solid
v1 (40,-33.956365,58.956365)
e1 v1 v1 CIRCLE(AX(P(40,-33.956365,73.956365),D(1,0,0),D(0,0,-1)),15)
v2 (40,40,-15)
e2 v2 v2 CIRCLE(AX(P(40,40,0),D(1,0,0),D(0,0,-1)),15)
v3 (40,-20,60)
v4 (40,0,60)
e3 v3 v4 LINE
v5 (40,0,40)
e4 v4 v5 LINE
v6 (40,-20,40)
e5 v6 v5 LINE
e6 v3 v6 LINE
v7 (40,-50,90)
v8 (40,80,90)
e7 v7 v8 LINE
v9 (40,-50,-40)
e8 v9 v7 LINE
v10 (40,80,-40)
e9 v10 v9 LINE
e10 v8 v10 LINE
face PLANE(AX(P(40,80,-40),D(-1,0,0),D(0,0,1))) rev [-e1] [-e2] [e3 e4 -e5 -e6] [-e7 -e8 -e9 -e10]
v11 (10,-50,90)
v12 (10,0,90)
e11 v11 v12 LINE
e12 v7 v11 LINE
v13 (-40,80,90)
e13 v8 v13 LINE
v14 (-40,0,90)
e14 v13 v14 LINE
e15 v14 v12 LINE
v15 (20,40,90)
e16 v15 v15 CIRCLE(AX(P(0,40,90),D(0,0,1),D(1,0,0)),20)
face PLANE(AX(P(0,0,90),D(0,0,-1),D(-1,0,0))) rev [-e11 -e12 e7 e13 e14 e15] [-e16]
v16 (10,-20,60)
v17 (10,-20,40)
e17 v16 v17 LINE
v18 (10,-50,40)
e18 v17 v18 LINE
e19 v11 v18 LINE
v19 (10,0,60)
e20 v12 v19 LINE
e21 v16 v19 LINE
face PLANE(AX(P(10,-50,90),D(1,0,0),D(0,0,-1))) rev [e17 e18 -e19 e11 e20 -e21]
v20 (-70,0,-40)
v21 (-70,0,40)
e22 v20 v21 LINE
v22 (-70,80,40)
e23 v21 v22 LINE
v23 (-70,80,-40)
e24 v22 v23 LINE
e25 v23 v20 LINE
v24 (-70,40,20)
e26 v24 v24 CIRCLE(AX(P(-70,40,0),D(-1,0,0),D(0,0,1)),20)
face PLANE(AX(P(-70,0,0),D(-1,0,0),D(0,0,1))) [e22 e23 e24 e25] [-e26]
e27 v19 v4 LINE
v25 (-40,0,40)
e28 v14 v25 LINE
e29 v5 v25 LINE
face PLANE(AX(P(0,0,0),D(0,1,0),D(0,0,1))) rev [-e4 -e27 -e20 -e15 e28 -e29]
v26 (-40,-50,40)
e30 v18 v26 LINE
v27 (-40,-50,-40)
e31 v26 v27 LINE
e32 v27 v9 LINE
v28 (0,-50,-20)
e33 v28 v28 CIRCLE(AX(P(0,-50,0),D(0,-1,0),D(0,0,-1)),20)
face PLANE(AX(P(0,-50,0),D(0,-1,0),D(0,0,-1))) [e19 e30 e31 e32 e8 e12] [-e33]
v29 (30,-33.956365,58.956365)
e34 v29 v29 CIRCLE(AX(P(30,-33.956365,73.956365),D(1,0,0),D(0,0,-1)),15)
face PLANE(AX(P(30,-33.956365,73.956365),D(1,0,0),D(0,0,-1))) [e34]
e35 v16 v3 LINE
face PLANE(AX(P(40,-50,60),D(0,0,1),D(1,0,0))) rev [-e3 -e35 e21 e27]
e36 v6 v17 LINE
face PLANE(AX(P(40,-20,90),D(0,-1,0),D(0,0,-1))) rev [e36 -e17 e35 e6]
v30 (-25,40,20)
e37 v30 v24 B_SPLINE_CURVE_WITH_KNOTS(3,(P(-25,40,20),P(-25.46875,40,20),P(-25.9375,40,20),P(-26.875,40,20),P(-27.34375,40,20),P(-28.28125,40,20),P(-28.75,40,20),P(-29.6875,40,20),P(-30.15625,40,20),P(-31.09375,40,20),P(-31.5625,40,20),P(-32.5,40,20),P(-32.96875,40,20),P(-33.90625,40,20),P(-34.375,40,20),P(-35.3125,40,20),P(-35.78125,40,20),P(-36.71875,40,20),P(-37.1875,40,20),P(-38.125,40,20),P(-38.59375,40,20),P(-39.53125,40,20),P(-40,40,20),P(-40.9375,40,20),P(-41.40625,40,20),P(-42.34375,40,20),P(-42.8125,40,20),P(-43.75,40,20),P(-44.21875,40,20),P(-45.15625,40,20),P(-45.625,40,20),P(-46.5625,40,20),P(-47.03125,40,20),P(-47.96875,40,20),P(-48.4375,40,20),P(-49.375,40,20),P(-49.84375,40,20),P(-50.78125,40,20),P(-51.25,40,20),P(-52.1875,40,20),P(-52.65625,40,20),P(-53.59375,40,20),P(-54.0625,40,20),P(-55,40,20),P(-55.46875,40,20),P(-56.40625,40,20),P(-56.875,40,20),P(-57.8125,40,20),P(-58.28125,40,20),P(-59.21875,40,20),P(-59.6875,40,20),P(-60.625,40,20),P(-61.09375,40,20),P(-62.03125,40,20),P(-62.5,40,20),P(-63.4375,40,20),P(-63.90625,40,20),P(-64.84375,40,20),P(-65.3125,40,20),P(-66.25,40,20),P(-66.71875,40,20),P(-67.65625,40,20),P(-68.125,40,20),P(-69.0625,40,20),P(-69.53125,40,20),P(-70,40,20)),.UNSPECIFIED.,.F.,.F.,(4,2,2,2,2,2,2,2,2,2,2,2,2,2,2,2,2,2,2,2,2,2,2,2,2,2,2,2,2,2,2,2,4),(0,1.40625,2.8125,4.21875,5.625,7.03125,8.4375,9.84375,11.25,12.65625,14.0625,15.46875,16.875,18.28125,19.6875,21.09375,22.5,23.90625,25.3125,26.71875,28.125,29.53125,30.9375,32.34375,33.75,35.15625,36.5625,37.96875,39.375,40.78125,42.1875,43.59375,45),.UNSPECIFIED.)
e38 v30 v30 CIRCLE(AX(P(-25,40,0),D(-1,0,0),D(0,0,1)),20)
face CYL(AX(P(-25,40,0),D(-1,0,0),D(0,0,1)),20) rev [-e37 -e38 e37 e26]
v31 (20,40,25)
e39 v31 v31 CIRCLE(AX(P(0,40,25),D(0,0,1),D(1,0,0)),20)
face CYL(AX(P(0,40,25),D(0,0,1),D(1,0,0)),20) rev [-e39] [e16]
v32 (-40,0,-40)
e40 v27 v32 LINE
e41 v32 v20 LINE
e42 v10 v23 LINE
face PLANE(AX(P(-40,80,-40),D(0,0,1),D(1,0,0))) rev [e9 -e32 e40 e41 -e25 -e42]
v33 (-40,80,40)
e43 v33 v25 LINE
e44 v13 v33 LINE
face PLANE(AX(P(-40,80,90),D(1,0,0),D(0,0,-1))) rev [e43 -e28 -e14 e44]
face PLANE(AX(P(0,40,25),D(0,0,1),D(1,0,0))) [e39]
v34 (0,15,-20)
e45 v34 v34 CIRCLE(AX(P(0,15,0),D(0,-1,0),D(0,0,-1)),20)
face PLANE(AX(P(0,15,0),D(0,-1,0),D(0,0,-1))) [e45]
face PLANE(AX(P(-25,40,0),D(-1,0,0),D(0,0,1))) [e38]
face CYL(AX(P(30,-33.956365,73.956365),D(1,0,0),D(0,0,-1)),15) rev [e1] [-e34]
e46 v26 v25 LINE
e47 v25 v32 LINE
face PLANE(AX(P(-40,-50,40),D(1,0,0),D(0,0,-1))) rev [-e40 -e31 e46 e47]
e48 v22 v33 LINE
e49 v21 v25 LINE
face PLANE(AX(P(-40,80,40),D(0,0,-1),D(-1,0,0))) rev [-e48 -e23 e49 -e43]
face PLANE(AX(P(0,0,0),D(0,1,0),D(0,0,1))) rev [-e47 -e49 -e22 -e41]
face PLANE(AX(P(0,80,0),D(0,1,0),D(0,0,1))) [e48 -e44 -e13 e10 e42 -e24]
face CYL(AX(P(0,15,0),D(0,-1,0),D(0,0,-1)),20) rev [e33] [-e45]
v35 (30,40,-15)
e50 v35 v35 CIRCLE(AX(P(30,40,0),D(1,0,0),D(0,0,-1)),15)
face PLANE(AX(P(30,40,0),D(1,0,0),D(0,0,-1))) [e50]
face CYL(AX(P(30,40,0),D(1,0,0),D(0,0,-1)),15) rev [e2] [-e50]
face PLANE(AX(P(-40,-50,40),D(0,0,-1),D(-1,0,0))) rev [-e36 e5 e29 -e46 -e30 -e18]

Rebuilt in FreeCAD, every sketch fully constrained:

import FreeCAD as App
import Part
import Sketcher

V = App.Vector


def add_polygon(sketch, points):
    """Adds a closed chain of lines whose ends are joined by coincident constraints."""
    first, n = sketch.GeometryCount, len(points)
    for a, b in zip(points, points[1:] + points[:1]):
        sketch.addGeometry(Part.LineSegment(App.Vector(*a, 0), App.Vector(*b, 0)), False)
    for i in range(n):
        sketch.addConstraint(Sketcher.Constraint("Coincident", first + i, 2, first + (i + 1) % n, 1))

doc = App.newDocument("Part")
params = doc.addObject("Spreadsheet::Sheet", "Params")
for row, (alias, value) in enumerate([
    ("sketch1_width", "80 mm"),
    ("pad1_length", "80 mm"),
    ("sketch2_width", "80 mm"),
    ("pad2_length", "30 mm"),
    ("sketch3_width", "80 mm"),
    ("pad3_length", "50 mm"),
    ("sketch4_width", "80 mm"),
    ("pad4_length", "50 mm"),
    ("sketch5_diameter", "40 mm"),
    ("pocket1_length", "45 mm"),
    ("sketch6_diameter", "40 mm"),
    ("pocket2_length", "65 mm"),
    ("sketch7_diameter", "40 mm"),
    ("pocket3_length", "65 mm"),
    ("sketch8_width", "30 mm"),
    ("pad5_length", "50 mm"),
    ("sketch9_width", "30 mm"),
    ("pad6_length", "50 mm"),
    ("sketch10_diameter", "30 mm"),
    ("pocket4_length", "10 mm"),
], start=1):
    params.set(f"A{row}", alias)
    params.set(f"B{row}", "=" + value)
    params.setAlias(f"B{row}", alias)

body = doc.addObject("PartDesign::Body", "Body")

# Sketch on XZ plane
sketch1 = doc.addObject("Sketcher::SketchObject", "Sketch")
body.addObject(sketch1)
sketch1.AttachmentSupport = (doc.XZ_Plane, [""])
sketch1.MapMode = "FlatFace"
add_polygon(sketch1, [(-40, -40), (-40, 40), (40, 40), (40, -40)])  # lines 0-3
sketch1.addConstraint([
    Sketcher.Constraint("Vertical", 0),
    Sketcher.Constraint("Horizontal", 1),
    Sketcher.Constraint("Vertical", 2),
    Sketcher.Constraint("Horizontal", 3),
    Sketcher.Constraint("Symmetric", 0, 2, 2, 2, -1, 1),
    Sketcher.Constraint("Equal", 3, 0),
    Sketcher.Constraint("DistanceX", 1, 1, 1, 2, 80.0),
])
sketch1.setExpression("Constraints[10]", "Params.sketch1_width")
pad1 = doc.addObject("PartDesign::Pad", "Pad")
body.addObject(pad1)
pad1.Profile = sketch1
pad1.setExpression("Length", "Params.pad1_length")
pad1.Reversed = True

# Sketch on YZ plane
sketch2 = doc.addObject("Sketcher::SketchObject", "Sketch001")
body.addObject(sketch2)
sketch2.AttachmentSupport = (doc.YZ_Plane, [""])
sketch2.MapMode = "FlatFace"
sketch2.AttachmentOffset = App.Placement(V(0, 0, -40), App.Rotation())
add_polygon(sketch2, [(80, -40), (0, -40), (0, 40), (80, 40)])  # lines 0-3
sketch2.addConstraint([
    Sketcher.Constraint("Horizontal", 0),
    Sketcher.Constraint("Vertical", 1),
    Sketcher.Constraint("Horizontal", 2),
    Sketcher.Constraint("Vertical", 3),
    Sketcher.Constraint("Symmetric", 0, 2, 1, 2, -1, 1),
    Sketcher.Constraint("Equal", 2, 1),
    Sketcher.Constraint("DistanceX", 0, 2, 0, 1, 80.0),
])
sketch2.setExpression("Constraints[10]", "Params.sketch2_width")
pad2 = doc.addObject("PartDesign::Pad", "Pad001")
body.addObject(pad2)
pad2.Profile = sketch2
pad2.setExpression("Length", "Params.pad2_length")
pad2.Reversed = True

# Sketch on XY plane
sketch3 = doc.addObject("Sketcher::SketchObject", "Sketch002")
body.addObject(sketch3)
sketch3.AttachmentSupport = (doc.XY_Plane, [""])
sketch3.MapMode = "FlatFace"
sketch3.AttachmentOffset = App.Placement(V(0, 0, 40), App.Rotation())
add_polygon(sketch3, [(-40, 80), (-40, 0), (40, 0), (40, 80)])  # lines 0-3
sketch3.addConstraint([
    Sketcher.Constraint("Vertical", 0),
    Sketcher.Constraint("Horizontal", 1),
    Sketcher.Constraint("Vertical", 2),
    Sketcher.Constraint("Horizontal", 3),
    Sketcher.Constraint("Symmetric", 0, 2, 1, 2, -1, 1),
    Sketcher.Constraint("Equal", 3, 0),
    Sketcher.Constraint("DistanceX", 1, 1, 1, 2, 80.0),
])
sketch3.setExpression("Constraints[10]", "Params.sketch3_width")
pad3 = doc.addObject("PartDesign::Pad", "Pad002")
body.addObject(pad3)
pad3.Profile = sketch3
pad3.setExpression("Length", "Params.pad3_length")

# Sketch on XZ plane
sketch4 = doc.addObject("Sketcher::SketchObject", "Sketch003")
body.addObject(sketch4)
sketch4.AttachmentSupport = (doc.XZ_Plane, [""])
sketch4.MapMode = "FlatFace"
add_polygon(sketch4, [(-40, 40), (-40, -40), (40, -40), (40, 40)])  # lines 0-3
sketch4.addConstraint([
    Sketcher.Constraint("Vertical", 0),
    Sketcher.Constraint("Horizontal", 1),
    Sketcher.Constraint("Vertical", 2),
    Sketcher.Constraint("Horizontal", 3),
    Sketcher.Constraint("Symmetric", 0, 2, 2, 2, -1, 1),
    Sketcher.Constraint("Equal", 3, 0),
    Sketcher.Constraint("DistanceX", 1, 1, 1, 2, 80.0),
])
sketch4.setExpression("Constraints[10]", "Params.sketch4_width")
pad4 = doc.addObject("PartDesign::Pad", "Pad003")
body.addObject(pad4)
pad4.Profile = sketch4
pad4.setExpression("Length", "Params.pad4_length")

# Sketch on YZ plane
sketch5 = doc.addObject("Sketcher::SketchObject", "Sketch004")
body.addObject(sketch5)
sketch5.AttachmentSupport = (doc.YZ_Plane, [""])
sketch5.MapMode = "FlatFace"
sketch5.AttachmentOffset = App.Placement(V(0, 0, -70), App.Rotation())
sketch5.addGeometry(Part.Circle(V(40, 0, 0), V(0, 0, 1), 20), False)
sketch5.addConstraint([
    Sketcher.Constraint("PointOnObject", 0, 3, -1),
    Sketcher.Constraint("Diameter", 0, 40.0),
    Sketcher.Constraint("DistanceX", -1, 1, 0, 3, 40.0),
])
sketch5.setExpression("Constraints[1]", "Params.sketch5_diameter")
pocket1 = doc.addObject("PartDesign::Pocket", "Pocket")
body.addObject(pocket1)
pocket1.Profile = sketch5
pocket1.setExpression("Length", "Params.pocket1_length")
pocket1.Reversed = True

# Sketch on XY plane
sketch6 = doc.addObject("Sketcher::SketchObject", "Sketch005")
body.addObject(sketch6)
sketch6.AttachmentSupport = (doc.XY_Plane, [""])
sketch6.MapMode = "FlatFace"
sketch6.AttachmentOffset = App.Placement(V(0, 0, 90), App.Rotation())
sketch6.addGeometry(Part.Circle(V(0, 40, 0), V(0, 0, 1), 20), False)
sketch6.addConstraint([
    Sketcher.Constraint("PointOnObject", 0, 3, -2),
    Sketcher.Constraint("Diameter", 0, 40.0),
    Sketcher.Constraint("DistanceY", -1, 1, 0, 3, 40.0),
])
sketch6.setExpression("Constraints[1]", "Params.sketch6_diameter")
pocket2 = doc.addObject("PartDesign::Pocket", "Pocket001")
body.addObject(pocket2)
pocket2.Profile = sketch6
pocket2.setExpression("Length", "Params.pocket2_length")

# Sketch on XZ plane
sketch7 = doc.addObject("Sketcher::SketchObject", "Sketch006")
body.addObject(sketch7)
sketch7.AttachmentSupport = (doc.XZ_Plane, [""])
sketch7.MapMode = "FlatFace"
sketch7.AttachmentOffset = App.Placement(V(0, 0, 50), App.Rotation())
sketch7.addGeometry(Part.Circle(V(0, 0, 0), V(0, 0, 1), 20), False)
sketch7.addConstraint([
    Sketcher.Constraint("Coincident", 0, 3, -1, 1),
    Sketcher.Constraint("Diameter", 0, 40.0),
])
sketch7.setExpression("Constraints[1]", "Params.sketch7_diameter")
pocket3 = doc.addObject("PartDesign::Pocket", "Pocket002")
body.addObject(pocket3)
pocket3.Profile = sketch7
pocket3.setExpression("Length", "Params.pocket3_length")

# Sketch on XZ plane
sketch8 = doc.addObject("Sketcher::SketchObject", "Sketch007")
body.addObject(sketch8)
sketch8.AttachmentSupport = (doc.XZ_Plane, [""])
sketch8.MapMode = "FlatFace"
add_polygon(sketch8, [(10, 90), (10, 60), (40, 60), (40, 90)])  # lines 0-3
sketch8.addConstraint([
    Sketcher.Constraint("Vertical", 0),
    Sketcher.Constraint("Horizontal", 1),
    Sketcher.Constraint("Vertical", 2),
    Sketcher.Constraint("Horizontal", 3),
    Sketcher.Constraint("Equal", 3, 0),
    Sketcher.Constraint("DistanceX", 1, 1, 1, 2, 30.0),
    Sketcher.Constraint("DistanceX", -1, 1, 0, 2, 10.0),
    Sketcher.Constraint("DistanceY", -1, 1, 0, 2, 60.0),
])
sketch8.setExpression("Constraints[9]", "Params.sketch8_width")
pad5 = doc.addObject("PartDesign::Pad", "Pad004")
body.addObject(pad5)
pad5.Profile = sketch8
pad5.setExpression("Length", "Params.pad5_length")

# Sketch on XY plane
sketch9 = doc.addObject("Sketcher::SketchObject", "Sketch008")
body.addObject(sketch9)
sketch9.AttachmentSupport = (doc.XY_Plane, [""])
sketch9.MapMode = "FlatFace"
sketch9.AttachmentOffset = App.Placement(V(0, 0, 40), App.Rotation())
add_polygon(sketch9, [(10, -20), (10, -50), (40, -50), (40, -20)])  # lines 0-3
sketch9.addConstraint([
    Sketcher.Constraint("Vertical", 0),
    Sketcher.Constraint("Horizontal", 1),
    Sketcher.Constraint("Vertical", 2),
    Sketcher.Constraint("Horizontal", 3),
    Sketcher.Constraint("Equal", 3, 0),
    Sketcher.Constraint("DistanceX", 1, 1, 1, 2, 30.0),
    Sketcher.Constraint("DistanceX", -1, 1, 0, 2, 10.0),
    Sketcher.Constraint("DistanceY", 0, 2, -1, 1, 50.0),
])
sketch9.setExpression("Constraints[9]", "Params.sketch9_width")
pad6 = doc.addObject("PartDesign::Pad", "Pad005")
body.addObject(pad6)
pad6.Profile = sketch9
pad6.setExpression("Length", "Params.pad6_length")

# Sketch on YZ plane
sketch10 = doc.addObject("Sketcher::SketchObject", "Sketch009")
body.addObject(sketch10)
sketch10.AttachmentSupport = (doc.YZ_Plane, [""])
sketch10.MapMode = "FlatFace"
sketch10.AttachmentOffset = App.Placement(V(0, 0, 40), App.Rotation())
sketch10.addGeometry([
    Part.Circle(V(-34, 74, 0), V(0, 0, 1), 15),
    Part.Circle(V(40, 0, 0), V(0, 0, 1), 15),
], False)
sketch10.addConstraint([
    Sketcher.Constraint("Equal", 0, 1),
    Sketcher.Constraint("PointOnObject", 1, 3, -1),
    Sketcher.Constraint("Diameter", 0, 30.0),
    Sketcher.Constraint("DistanceX", -1, 1, 1, 3, 40.0),
    Sketcher.Constraint("DistanceX", 0, 3, -1, 1, 33.956365),
    Sketcher.Constraint("DistanceY", -1, 1, 0, 3, 73.956365),
])
sketch10.setExpression("Constraints[2]", "Params.sketch10_diameter")
pocket4 = doc.addObject("PartDesign::Pocket", "Pocket003")
body.addObject(pocket4)
pocket4.Profile = sketch10
pocket4.setExpression("Length", "Params.pocket4_length")

doc.recompute()
